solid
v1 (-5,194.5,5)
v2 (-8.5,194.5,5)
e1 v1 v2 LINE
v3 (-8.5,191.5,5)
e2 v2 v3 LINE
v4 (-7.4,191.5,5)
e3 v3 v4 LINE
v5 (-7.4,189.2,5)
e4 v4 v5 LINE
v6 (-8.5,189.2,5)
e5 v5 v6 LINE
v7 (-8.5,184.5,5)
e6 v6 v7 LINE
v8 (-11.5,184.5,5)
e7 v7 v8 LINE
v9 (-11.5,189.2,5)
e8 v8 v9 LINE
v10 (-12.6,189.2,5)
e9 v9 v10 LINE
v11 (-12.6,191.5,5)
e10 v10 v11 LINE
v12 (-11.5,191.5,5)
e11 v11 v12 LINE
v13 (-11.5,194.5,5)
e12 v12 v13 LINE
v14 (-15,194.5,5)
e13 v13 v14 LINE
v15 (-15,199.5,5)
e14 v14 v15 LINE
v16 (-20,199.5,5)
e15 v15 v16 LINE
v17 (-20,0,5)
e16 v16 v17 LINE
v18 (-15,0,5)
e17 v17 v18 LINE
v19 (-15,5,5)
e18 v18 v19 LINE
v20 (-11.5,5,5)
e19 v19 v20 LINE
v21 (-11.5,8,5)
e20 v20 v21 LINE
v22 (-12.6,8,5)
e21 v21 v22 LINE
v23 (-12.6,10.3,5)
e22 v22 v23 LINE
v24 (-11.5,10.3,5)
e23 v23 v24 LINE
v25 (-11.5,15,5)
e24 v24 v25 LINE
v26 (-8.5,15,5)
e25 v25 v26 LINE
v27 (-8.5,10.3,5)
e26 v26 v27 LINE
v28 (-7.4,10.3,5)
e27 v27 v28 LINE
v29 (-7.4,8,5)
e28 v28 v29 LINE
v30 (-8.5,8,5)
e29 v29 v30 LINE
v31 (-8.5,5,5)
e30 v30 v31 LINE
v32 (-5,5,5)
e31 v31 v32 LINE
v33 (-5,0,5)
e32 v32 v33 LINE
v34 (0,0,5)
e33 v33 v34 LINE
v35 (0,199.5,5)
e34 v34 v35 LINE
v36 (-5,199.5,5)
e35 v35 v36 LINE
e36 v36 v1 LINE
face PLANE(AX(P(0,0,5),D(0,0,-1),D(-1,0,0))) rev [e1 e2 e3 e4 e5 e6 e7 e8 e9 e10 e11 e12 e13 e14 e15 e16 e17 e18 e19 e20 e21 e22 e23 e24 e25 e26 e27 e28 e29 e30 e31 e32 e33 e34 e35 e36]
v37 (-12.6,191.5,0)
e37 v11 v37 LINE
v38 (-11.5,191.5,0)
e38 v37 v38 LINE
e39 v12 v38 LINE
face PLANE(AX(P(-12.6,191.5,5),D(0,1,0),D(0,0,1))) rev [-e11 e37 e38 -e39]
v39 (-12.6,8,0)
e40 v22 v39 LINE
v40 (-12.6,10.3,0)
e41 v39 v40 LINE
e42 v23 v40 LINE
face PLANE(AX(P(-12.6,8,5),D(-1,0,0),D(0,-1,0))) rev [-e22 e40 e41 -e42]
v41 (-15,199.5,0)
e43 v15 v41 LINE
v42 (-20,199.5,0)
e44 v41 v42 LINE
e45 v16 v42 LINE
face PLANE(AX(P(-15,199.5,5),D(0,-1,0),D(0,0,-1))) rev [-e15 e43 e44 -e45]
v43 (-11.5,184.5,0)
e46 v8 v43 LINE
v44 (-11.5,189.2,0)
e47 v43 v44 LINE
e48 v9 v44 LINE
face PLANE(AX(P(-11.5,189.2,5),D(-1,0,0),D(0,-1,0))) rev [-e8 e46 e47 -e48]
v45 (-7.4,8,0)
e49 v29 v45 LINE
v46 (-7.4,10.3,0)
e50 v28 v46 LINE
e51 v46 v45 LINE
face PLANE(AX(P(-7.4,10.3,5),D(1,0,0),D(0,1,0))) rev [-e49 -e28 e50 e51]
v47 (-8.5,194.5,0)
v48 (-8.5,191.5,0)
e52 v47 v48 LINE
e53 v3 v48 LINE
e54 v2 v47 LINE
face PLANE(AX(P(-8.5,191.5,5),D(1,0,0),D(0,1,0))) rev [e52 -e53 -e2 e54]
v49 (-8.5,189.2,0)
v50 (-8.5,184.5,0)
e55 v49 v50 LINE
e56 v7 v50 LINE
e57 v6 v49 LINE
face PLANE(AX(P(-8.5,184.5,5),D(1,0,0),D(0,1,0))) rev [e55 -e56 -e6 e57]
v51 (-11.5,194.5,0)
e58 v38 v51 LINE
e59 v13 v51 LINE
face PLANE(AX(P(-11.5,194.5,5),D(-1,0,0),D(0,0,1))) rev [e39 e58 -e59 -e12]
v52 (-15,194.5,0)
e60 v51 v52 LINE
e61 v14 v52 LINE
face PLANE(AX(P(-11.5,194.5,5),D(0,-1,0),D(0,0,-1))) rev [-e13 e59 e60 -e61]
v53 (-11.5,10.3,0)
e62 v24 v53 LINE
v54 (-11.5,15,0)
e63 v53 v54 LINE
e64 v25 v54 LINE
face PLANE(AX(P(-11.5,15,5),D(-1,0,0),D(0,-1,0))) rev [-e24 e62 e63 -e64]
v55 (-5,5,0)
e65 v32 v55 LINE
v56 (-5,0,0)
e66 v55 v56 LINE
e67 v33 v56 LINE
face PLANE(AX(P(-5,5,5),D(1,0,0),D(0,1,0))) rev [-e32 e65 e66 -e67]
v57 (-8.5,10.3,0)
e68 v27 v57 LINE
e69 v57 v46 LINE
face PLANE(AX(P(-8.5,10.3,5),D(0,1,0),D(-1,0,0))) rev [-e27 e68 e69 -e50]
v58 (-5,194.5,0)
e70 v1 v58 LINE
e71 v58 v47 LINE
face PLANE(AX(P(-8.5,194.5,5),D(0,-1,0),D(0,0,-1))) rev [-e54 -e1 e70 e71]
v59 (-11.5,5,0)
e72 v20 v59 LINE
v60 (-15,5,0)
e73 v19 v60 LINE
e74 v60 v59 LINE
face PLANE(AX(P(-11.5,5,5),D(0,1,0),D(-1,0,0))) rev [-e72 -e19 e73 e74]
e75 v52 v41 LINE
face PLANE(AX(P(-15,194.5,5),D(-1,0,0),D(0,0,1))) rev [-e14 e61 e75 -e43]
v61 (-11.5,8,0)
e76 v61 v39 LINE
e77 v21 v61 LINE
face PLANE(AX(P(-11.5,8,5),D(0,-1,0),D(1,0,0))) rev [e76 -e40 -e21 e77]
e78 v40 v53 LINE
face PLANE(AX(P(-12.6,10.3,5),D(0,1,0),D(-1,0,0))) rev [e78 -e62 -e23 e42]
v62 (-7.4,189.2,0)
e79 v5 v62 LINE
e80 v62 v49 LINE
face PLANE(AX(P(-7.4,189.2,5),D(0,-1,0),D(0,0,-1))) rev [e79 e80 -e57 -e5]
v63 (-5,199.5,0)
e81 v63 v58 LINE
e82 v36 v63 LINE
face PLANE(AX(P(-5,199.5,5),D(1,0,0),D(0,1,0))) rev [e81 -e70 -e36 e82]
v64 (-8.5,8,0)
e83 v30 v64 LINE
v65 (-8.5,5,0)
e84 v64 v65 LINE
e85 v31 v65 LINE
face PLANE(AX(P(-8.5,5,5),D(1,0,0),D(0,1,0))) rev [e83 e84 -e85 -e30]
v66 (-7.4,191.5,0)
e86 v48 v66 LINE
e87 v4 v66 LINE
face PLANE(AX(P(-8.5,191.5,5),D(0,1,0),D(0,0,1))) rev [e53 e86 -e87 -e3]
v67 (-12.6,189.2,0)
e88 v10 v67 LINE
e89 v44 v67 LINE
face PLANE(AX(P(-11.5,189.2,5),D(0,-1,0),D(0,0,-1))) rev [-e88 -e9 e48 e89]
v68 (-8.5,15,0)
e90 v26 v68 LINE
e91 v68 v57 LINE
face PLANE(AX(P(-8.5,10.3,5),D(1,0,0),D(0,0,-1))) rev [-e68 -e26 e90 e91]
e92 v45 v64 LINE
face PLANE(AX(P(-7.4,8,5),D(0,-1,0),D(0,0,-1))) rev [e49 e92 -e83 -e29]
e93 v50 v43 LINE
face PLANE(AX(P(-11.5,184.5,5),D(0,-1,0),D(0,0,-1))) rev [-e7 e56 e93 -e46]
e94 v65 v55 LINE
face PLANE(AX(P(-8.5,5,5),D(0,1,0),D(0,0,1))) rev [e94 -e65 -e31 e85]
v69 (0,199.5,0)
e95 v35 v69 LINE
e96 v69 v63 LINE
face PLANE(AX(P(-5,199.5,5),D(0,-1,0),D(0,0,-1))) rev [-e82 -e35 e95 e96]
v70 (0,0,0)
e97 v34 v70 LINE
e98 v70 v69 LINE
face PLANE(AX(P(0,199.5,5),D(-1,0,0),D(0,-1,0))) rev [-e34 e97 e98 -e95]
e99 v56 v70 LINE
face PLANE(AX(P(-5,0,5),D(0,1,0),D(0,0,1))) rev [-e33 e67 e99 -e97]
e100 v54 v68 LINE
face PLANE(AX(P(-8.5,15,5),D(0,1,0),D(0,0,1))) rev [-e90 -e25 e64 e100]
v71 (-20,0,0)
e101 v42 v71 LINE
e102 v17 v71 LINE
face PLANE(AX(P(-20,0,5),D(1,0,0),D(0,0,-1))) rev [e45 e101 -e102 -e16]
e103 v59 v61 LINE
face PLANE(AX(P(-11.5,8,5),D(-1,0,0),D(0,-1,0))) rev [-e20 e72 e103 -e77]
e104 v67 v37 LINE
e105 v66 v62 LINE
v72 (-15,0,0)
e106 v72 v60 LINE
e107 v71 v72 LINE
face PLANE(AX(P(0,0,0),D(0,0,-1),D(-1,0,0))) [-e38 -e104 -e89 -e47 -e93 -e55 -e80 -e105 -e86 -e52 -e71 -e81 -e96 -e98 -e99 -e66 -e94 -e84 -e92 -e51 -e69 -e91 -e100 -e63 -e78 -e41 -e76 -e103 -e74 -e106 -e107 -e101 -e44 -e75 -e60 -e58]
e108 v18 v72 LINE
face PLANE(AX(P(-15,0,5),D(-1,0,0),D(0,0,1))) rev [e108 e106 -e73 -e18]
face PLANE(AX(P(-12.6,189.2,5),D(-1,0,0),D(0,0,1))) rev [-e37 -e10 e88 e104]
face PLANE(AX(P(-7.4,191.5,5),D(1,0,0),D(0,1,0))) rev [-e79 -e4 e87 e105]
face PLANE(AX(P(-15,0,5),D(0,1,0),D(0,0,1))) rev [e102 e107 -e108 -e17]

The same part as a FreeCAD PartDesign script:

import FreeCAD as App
import Part
import Sketcher

V = App.Vector
Q = App.Units.Quantity

doc = App.newDocument("Part")
body = doc.addObject("PartDesign::Body", "Body")

# Sketch on XY plane
sketch1 = body.newObject("Sketcher::SketchObject", "Sketch")
sketch1.AttachmentSupport = (doc.getObject("XY_Plane"), [""])
sketch1.MapMode = "FlatFace"
sketch1.addGeometry([
    Part.LineSegment(V(0, 0, 0), V(0, 199.5, 0)),  # 0
    Part.LineSegment(V(0, 199.5, 0), V(-5, 199.5, 0)),  # 1
    Part.LineSegment(V(-5, 199.5, 0), V(-5, 194.5, 0)),  # 2
    Part.LineSegment(V(-5, 194.5, 0), V(-8.5, 194.5, 0)),  # 3
    Part.LineSegment(V(-8.5, 194.5, 0), V(-8.5, 191.5, 0)),  # 4
    Part.LineSegment(V(-8.5, 191.5, 0), V(-7.4, 191.5, 0)),  # 5
    Part.LineSegment(V(-7.4, 191.5, 0), V(-7.4, 189.2, 0)),  # 6
    Part.LineSegment(V(-7.4, 189.2, 0), V(-8.5, 189.2, 0)),  # 7
    Part.LineSegment(V(-8.5, 189.2, 0), V(-8.5, 184.5, 0)),  # 8
    Part.LineSegment(V(-8.5, 184.5, 0), V(-11.5, 184.5, 0)),  # 9
    Part.LineSegment(V(-11.5, 184.5, 0), V(-11.5, 189.2, 0)),  # 10
    Part.LineSegment(V(-11.5, 189.2, 0), V(-12.6, 189.2, 0)),  # 11
    Part.LineSegment(V(-12.6, 189.2, 0), V(-12.6, 191.5, 0)),  # 12
    Part.LineSegment(V(-12.6, 191.5, 0), V(-11.5, 191.5, 0)),  # 13
    Part.LineSegment(V(-11.5, 191.5, 0), V(-11.5, 194.5, 0)),  # 14
    Part.LineSegment(V(-11.5, 194.5, 0), V(-15, 194.5, 0)),  # 15
    Part.LineSegment(V(-15, 194.5, 0), V(-15, 199.5, 0)),  # 16
    Part.LineSegment(V(-15, 199.5, 0), V(-20, 199.5, 0)),  # 17
    Part.LineSegment(V(-20, 199.5, 0), V(-20, 0, 0)),  # 18
    Part.LineSegment(V(-20, 0, 0), V(-15, 0, 0)),  # 19
    Part.LineSegment(V(-15, 0, 0), V(-15, 5, 0)),  # 20
    Part.LineSegment(V(-15, 5, 0), V(-11.5, 5, 0)),  # 21
    Part.LineSegment(V(-11.5, 5, 0), V(-11.5, 8, 0)),  # 22
    Part.LineSegment(V(-11.5, 8, 0), V(-12.6, 8, 0)),  # 23
    Part.LineSegment(V(-12.6, 8, 0), V(-12.6, 10.3, 0)),  # 24
    Part.LineSegment(V(-12.6, 10.3, 0), V(-11.5, 10.3, 0)),  # 25
    Part.LineSegment(V(-11.5, 10.3, 0), V(-11.5, 15, 0)),  # 26
    Part.LineSegment(V(-11.5, 15, 0), V(-8.5, 15, 0)),  # 27
    Part.LineSegment(V(-8.5, 15, 0), V(-8.5, 10.3, 0)),  # 28
    Part.LineSegment(V(-8.5, 10.3, 0), V(-7.4, 10.3, 0)),  # 29
    Part.LineSegment(V(-7.4, 10.3, 0), V(-7.4, 8, 0)),  # 30
    Part.LineSegment(V(-7.4, 8, 0), V(-8.5, 8, 0)),  # 31
    Part.LineSegment(V(-8.5, 8, 0), V(-8.5, 5, 0)),  # 32
    Part.LineSegment(V(-8.5, 5, 0), V(-5, 5, 0)),  # 33
    Part.LineSegment(V(-5, 5, 0), V(-5, 0, 0)),  # 34
    Part.LineSegment(V(-5, 0, 0), V(0, 0, 0)),  # 35
], False)
sketch1.addConstraint([
    Sketcher.Constraint("Coincident", 0, 2, 1, 1),
    Sketcher.Constraint("Coincident", 1, 2, 2, 1),
    Sketcher.Constraint("Coincident", 2, 2, 3, 1),
    Sketcher.Constraint("Coincident", 3, 2, 4, 1),
    Sketcher.Constraint("Coincident", 4, 2, 5, 1),
    Sketcher.Constraint("Coincident", 5, 2, 6, 1),
    Sketcher.Constraint("Coincident", 6, 2, 7, 1),
    Sketcher.Constraint("Coincident", 7, 2, 8, 1),
    Sketcher.Constraint("Coincident", 8, 2, 9, 1),
    Sketcher.Constraint("Coincident", 9, 2, 10, 1),
    Sketcher.Constraint("Coincident", 10, 2, 11, 1),
    Sketcher.Constraint("Coincident", 11, 2, 12, 1),
    Sketcher.Constraint("Coincident", 12, 2, 13, 1),
    Sketcher.Constraint("Coincident", 13, 2, 14, 1),
    Sketcher.Constraint("Coincident", 14, 2, 15, 1),
    Sketcher.Constraint("Coincident", 15, 2, 16, 1),
    Sketcher.Constraint("Coincident", 16, 2, 17, 1),
    Sketcher.Constraint("Coincident", 17, 2, 18, 1),
    Sketcher.Constraint("Coincident", 18, 2, 19, 1),
    Sketcher.Constraint("Coincident", 19, 2, 20, 1),
    Sketcher.Constraint("Coincident", 20, 2, 21, 1),
    Sketcher.Constraint("Coincident", 21, 2, 22, 1),
    Sketcher.Constraint("Coincident", 22, 2, 23, 1),
    Sketcher.Constraint("Coincident", 23, 2, 24, 1),
    Sketcher.Constraint("Coincident", 24, 2, 25, 1),
    Sketcher.Constraint("Coincident", 25, 2, 26, 1),
    Sketcher.Constraint("Coincident", 26, 2, 27, 1),
    Sketcher.Constraint("Coincident", 27, 2, 28, 1),
    Sketcher.Constraint("Coincident", 28, 2, 29, 1),
    Sketcher.Constraint("Coincident", 29, 2, 30, 1),
    Sketcher.Constraint("Coincident", 30, 2, 31, 1),
    Sketcher.Constraint("Coincident", 31, 2, 32, 1),
    Sketcher.Constraint("Coincident", 32, 2, 33, 1),
    Sketcher.Constraint("Coincident", 33, 2, 34, 1),
    Sketcher.Constraint("Coincident", 34, 2, 35, 1),
    Sketcher.Constraint("Coincident", 35, 2, 0, 1),
    Sketcher.Constraint("Vertical", 0),
    Sketcher.Constraint("Horizontal", 1),
    Sketcher.Constraint("Vertical", 2),
    Sketcher.Constraint("Horizontal", 3),
    Sketcher.Constraint("Vertical", 4),
    Sketcher.Constraint("Horizontal", 5),
    Sketcher.Constraint("Vertical", 6),
    Sketcher.Constraint("Horizontal", 7),
    Sketcher.Constraint("Vertical", 8),
    Sketcher.Constraint("Horizontal", 9),
    Sketcher.Constraint("Vertical", 10),
    Sketcher.Constraint("Horizontal", 11),
    Sketcher.Constraint("Vertical", 12),
    Sketcher.Constraint("Horizontal", 13),
    Sketcher.Constraint("Vertical", 14),
    Sketcher.Constraint("Horizontal", 15),
    Sketcher.Constraint("Vertical", 16),
    Sketcher.Constraint("Horizontal", 17),
    Sketcher.Constraint("Vertical", 18),
    Sketcher.Constraint("Horizontal", 19),
    Sketcher.Constraint("Vertical", 20),
    Sketcher.Constraint("Horizontal", 21),
    Sketcher.Constraint("Vertical", 22),
    Sketcher.Constraint("Horizontal", 23),
    Sketcher.Constraint("Vertical", 24),
    Sketcher.Constraint("Horizontal", 25),
    Sketcher.Constraint("Vertical", 26),
    Sketcher.Constraint("Horizontal", 27),
    Sketcher.Constraint("Vertical", 28),
    Sketcher.Constraint("Horizontal", 29),
    Sketcher.Constraint("Vertical", 30),
    Sketcher.Constraint("Horizontal", 31),
    Sketcher.Constraint("Vertical", 32),
    Sketcher.Constraint("Horizontal", 33),
    Sketcher.Constraint("Vertical", 34),
    Sketcher.Constraint("Horizontal", 35),
    Sketcher.Constraint("Coincident", 35, 2, -1, 1),
    Sketcher.Constraint("PointOnObject", 18, 2, -1),
    Sketcher.Constraint("Horizontal", 7, 2, 10, 2),
    Sketcher.Constraint("Horizontal", 5, 2, 12, 2),
    Sketcher.Constraint("Horizontal", 3, 2, 14, 2),
    Sketcher.Constraint("Horizontal", 1, 2, 16, 2),
    Sketcher.Constraint("Horizontal", 25, 2, 28, 2),
    Sketcher.Constraint("Horizontal", 23, 2, 30, 2),
    Sketcher.Constraint("Horizontal", 21, 2, 32, 2),
    Sketcher.Constraint("Vertical", 4, 2, 7, 2),
    Sketcher.Constraint("Vertical", 10, 2, 13, 2),
    Sketcher.Constraint("Vertical", 16, 2, 19, 2),
    Sketcher.Constraint("Vertical", 14, 2, 21, 2),
    Sketcher.Constraint("Vertical", 12, 2, 23, 2),
    Sketcher.Constraint("Vertical", 22, 2, 25, 2),
    Sketcher.Constraint("Vertical", 8, 2, 27, 2),
    Sketcher.Constraint("Vertical", 6, 2, 29, 2),
    Sketcher.Constraint("Vertical", 28, 2, 31, 2),
    Sketcher.Constraint("Vertical", 2, 2, 33, 2),
    Sketcher.Constraint("Equal", 7, 11),
    Sketcher.Constraint("Equal", 3, 15),
    Sketcher.Constraint("Equal", 1, 17),
    Sketcher.Constraint("Equal", 35, 2),
    Sketcher.Constraint("Equal", 27, 4),
    Sketcher.Constraint("Equal", 16, 20),
    Sketcher.Constraint("Equal", 14, 22),
    Sketcher.Constraint("Equal", 12, 24),
    Sketcher.Constraint("Equal", 10, 26),
    Sketcher.Constraint("DistanceX", 1, 2, 1, 1, Q("5 mm")),
    Sketcher.Constraint("DistanceX", 9, 2, 9, 1, Q("3 mm")),
    Sketcher.Constraint("DistanceX", 3, 2, 3, 1, Q("3.5 mm")),
    Sketcher.Constraint("DistanceX", 5, 1, 5, 2, Q("1.1 mm")),
    Sketcher.Constraint("DistanceY", 0, 1, 0, 2, Q("199.5 mm")),
    Sketcher.Constraint("DistanceY", 6, 2, 6, 1, Q("2.3 mm")),
    Sketcher.Constraint("DistanceY", 8, 2, 8, 1, Q("4.7 mm")),
])
pad1 = body.newObject("PartDesign::Pad", "Pad")
pad1.Profile = sketch1
pad1.Length = 5

doc.recompute()
